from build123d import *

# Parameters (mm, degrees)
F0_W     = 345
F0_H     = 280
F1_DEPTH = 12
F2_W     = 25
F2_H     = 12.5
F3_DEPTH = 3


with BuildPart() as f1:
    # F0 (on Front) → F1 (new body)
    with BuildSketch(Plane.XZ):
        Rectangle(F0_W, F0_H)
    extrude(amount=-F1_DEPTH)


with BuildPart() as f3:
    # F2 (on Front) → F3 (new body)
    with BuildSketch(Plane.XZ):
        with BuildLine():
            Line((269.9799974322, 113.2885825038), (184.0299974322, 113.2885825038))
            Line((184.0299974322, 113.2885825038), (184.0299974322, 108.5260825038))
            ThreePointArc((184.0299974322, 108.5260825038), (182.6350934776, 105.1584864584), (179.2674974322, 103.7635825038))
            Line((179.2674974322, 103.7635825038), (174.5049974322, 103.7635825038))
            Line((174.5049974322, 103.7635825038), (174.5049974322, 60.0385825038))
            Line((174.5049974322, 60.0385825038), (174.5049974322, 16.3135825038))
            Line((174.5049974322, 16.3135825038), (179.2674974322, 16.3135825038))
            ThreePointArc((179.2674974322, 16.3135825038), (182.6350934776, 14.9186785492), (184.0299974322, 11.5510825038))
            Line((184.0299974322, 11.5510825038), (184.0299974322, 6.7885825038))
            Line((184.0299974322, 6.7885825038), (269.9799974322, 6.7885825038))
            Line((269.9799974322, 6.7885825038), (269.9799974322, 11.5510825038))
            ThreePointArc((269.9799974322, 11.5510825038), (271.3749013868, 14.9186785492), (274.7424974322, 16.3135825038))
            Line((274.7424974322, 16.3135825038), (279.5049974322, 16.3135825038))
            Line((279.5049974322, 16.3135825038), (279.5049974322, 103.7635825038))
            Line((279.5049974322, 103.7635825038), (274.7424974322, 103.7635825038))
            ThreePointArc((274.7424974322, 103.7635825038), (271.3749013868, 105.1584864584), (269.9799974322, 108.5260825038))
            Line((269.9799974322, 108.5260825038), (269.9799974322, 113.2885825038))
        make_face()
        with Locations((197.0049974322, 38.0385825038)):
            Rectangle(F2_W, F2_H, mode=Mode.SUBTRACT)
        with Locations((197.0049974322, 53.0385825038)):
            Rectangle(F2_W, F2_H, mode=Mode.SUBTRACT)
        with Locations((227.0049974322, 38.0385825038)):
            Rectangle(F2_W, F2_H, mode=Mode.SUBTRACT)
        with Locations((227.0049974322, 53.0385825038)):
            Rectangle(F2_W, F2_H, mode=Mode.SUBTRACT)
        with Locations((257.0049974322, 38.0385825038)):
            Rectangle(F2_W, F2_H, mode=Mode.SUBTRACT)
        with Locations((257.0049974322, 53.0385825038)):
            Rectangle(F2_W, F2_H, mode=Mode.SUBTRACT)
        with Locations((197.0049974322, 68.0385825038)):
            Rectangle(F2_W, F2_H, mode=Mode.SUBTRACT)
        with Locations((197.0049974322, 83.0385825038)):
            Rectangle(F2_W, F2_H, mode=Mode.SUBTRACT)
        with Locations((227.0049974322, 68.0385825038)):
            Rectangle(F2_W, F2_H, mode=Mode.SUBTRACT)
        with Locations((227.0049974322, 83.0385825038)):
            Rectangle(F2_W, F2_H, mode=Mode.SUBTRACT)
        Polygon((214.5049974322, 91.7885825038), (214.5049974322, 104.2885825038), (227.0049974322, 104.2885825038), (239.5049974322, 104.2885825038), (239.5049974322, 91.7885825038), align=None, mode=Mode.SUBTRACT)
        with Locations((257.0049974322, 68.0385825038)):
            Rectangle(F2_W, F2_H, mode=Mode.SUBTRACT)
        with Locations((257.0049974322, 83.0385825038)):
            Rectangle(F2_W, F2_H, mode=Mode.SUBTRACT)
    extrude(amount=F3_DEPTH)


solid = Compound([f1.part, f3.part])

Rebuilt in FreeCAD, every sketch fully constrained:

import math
import FreeCAD as App
import Part
import Sketcher
from FreeCAD import Vector


def add_polygon(sketch, points):
    """Adds a closed chain of lines whose ends are joined by coincident constraints."""
    first, n = sketch.GeometryCount, len(points)
    for a, b in zip(points, points[1:] + points[:1]):
        sketch.addGeometry(Part.LineSegment(App.Vector(*a, 0), App.Vector(*b, 0)), False)
    for i in range(n):
        sketch.addConstraint(Sketcher.Constraint("Coincident", first + i, 2, first + (i + 1) % n, 1))

doc = App.newDocument("Part")
body = doc.addObject("PartDesign::Body", "Body")

# Sketch on XZ plane
sketch1 = body.newObject("Sketcher::SketchObject", "Sketch")
sketch1.AttachmentSupport = (doc.getObject("XZ_Plane"), [""])
sketch1.MapMode = "FlatFace"
add_polygon(sketch1, [(-172.5, 140), (-172.5, -140), (172.5, -140), (172.5, 140)])  # lines 0-3
sketch1.addConstraint(Sketcher.Constraint("Vertical", 0))
sketch1.addConstraint(Sketcher.Constraint("Horizontal", 1))
sketch1.addConstraint(Sketcher.Constraint("Vertical", 2))
sketch1.addConstraint(Sketcher.Constraint("Horizontal", 3))
sketch1.addConstraint(Sketcher.Constraint("Symmetric", 0, 2, 2, 2, -1, 1))
sketch1.addConstraint(Sketcher.Constraint("DistanceX", 1, 1, 1, 2, 345.0))
sketch1.addConstraint(Sketcher.Constraint("DistanceY", 0, 2, 0, 1, 280.0))
pad1 = body.newObject("PartDesign::Pad", "Pad")
pad1.Profile = sketch1
pad1.Length = 12
pad1.Reversed = True
body2 = doc.addObject("PartDesign::Body", "Body001")

# Sketch on XZ plane
sketch2 = body2.newObject("Sketcher::SketchObject", "Sketch001")
sketch2.AttachmentSupport = (doc.getObject("XZ_Plane001"), [""])
sketch2.MapMode = "FlatFace"
sketch2.addGeometry(Part.LineSegment(Vector(269.979997, 113.288583, 0), Vector(184.029997, 113.288583, 0)), False)  # 0
sketch2.addGeometry(Part.LineSegment(Vector(184.029997, 113.288583, 0), Vector(184.029997, 108.526083, 0)), False)  # 1
sketch2.addGeometry(Part.ArcOfCircle(Part.Circle(Vector(179.267497, 108.526083, 0), Vector(0, 0, 1), 4.7625), math.radians(-90), math.radians(0)), False)  # 2
sketch2.addGeometry(Part.LineSegment(Vector(179.267497, 103.763583, 0), Vector(174.504997, 103.763583, 0)), False)  # 3
sketch2.addGeometry(Part.LineSegment(Vector(174.504997, 103.763583, 0), Vector(174.504997, 16.313583, 0)), False)  # 4
sketch2.addGeometry(Part.LineSegment(Vector(174.504997, 16.313583, 0), Vector(179.267497, 16.313583, 0)), False)  # 5
sketch2.addGeometry(Part.ArcOfCircle(Part.Circle(Vector(179.267497, 11.551083, 0), Vector(0, 0, 1), 4.7625), math.radians(0), math.radians(90)), False)  # 6
sketch2.addGeometry(Part.LineSegment(Vector(184.029997, 11.551083, 0), Vector(184.029997, 6.788583, 0)), False)  # 7
sketch2.addGeometry(Part.LineSegment(Vector(184.029997, 6.788583, 0), Vector(269.979997, 6.788583, 0)), False)  # 8
sketch2.addGeometry(Part.LineSegment(Vector(269.979997, 6.788583, 0), Vector(269.979997, 11.551083, 0)), False)  # 9
sketch2.addGeometry(Part.ArcOfCircle(Part.Circle(Vector(274.742497, 11.551083, 0), Vector(0, 0, 1), 4.7625), math.radians(90), math.radians(180)), False)  # 10
sketch2.addGeometry(Part.LineSegment(Vector(274.742497, 16.313583, 0), Vector(279.504997, 16.313583, 0)), False)  # 11
sketch2.addGeometry(Part.LineSegment(Vector(279.504997, 16.313583, 0), Vector(279.504997, 103.763583, 0)), False)  # 12
sketch2.addGeometry(Part.LineSegment(Vector(279.504997, 103.763583, 0), Vector(274.742497, 103.763583, 0)), False)  # 13
sketch2.addGeometry(Part.ArcOfCircle(Part.Circle(Vector(274.742497, 108.526083, 0), Vector(0, 0, 1), 4.7625), math.radians(180), math.radians(270)), False)  # 14
sketch2.addGeometry(Part.LineSegment(Vector(269.979997, 108.526083, 0), Vector(269.979997, 113.288583, 0)), False)  # 15
add_polygon(sketch2, [(209.504997, 31.788583), (184.504997, 31.788583), (184.504997, 44.288583), (209.504997, 44.288583)])  # lines 16-19
add_polygon(sketch2, [(209.504997, 46.788583), (184.504997, 46.788583), (184.504997, 59.288583), (209.504997, 59.288583)])  # lines 20-23
add_polygon(sketch2, [(239.504997, 31.788583), (214.504997, 31.788583), (214.504997, 44.288583), (239.504997, 44.288583)])  # lines 24-27
add_polygon(sketch2, [(269.504997, 31.788583), (244.504997, 31.788583), (244.504997, 44.288583), (269.504997, 44.288583)])  # lines 28-31
add_polygon(sketch2, [(239.504997, 46.788583), (214.504997, 46.788583), (214.504997, 59.288583), (239.504997, 59.288583)])  # lines 32-35
add_polygon(sketch2, [(269.504997, 46.788583), (244.504997, 46.788583), (244.504997, 59.288583), (269.504997, 59.288583)])  # lines 36-39
add_polygon(sketch2, [(209.504997, 61.788583), (184.504997, 61.788583), (184.504997, 74.288583), (209.504997, 74.288583)])  # lines 40-43
add_polygon(sketch2, [(209.504997, 76.788583), (184.504997, 76.788583), (184.504997, 89.288583), (209.504997, 89.288583)])  # lines 44-47
add_polygon(sketch2, [(239.504997, 61.788583), (214.504997, 61.788583), (214.504997, 74.288583), (239.504997, 74.288583)])  # lines 48-51
add_polygon(sketch2, [(239.504997, 76.788583), (214.504997, 76.788583), (214.504997, 89.288583), (239.504997, 89.288583)])  # lines 52-55
add_polygon(sketch2, [(269.504997, 61.788583), (244.504997, 61.788583), (244.504997, 74.288583), (269.504997, 74.288583)])  # lines 56-59
add_polygon(sketch2, [(269.504997, 76.788583), (244.504997, 76.788583), (244.504997, 89.288583), (269.504997, 89.288583)])  # lines 60-63
add_polygon(sketch2, [(239.504997, 91.788583), (214.504997, 91.788583), (214.504997, 104.288583), (239.504997, 104.288583)])  # lines 64-67
sketch2.addConstraint(Sketcher.Constraint("Coincident", 0, 2, 1, 1))
sketch2.addConstraint(Sketcher.Constraint("Tangent", 1, 2, 2, 2))
sketch2.addConstraint(Sketcher.Constraint("Tangent", 2, 1, 3, 1))
sketch2.addConstraint(Sketcher.Constraint("Coincident", 3, 2, 4, 1))
sketch2.addConstraint(Sketcher.Constraint("Coincident", 4, 2, 5, 1))
sketch2.addConstraint(Sketcher.Constraint("Tangent", 5, 2, 6, 2))
sketch2.addConstraint(Sketcher.Constraint("Tangent", 6, 1, 7, 1))
sketch2.addConstraint(Sketcher.Constraint("Coincident", 7, 2, 8, 1))
sketch2.addConstraint(Sketcher.Constraint("Coincident", 8, 2, 9, 1))
sketch2.addConstraint(Sketcher.Constraint("Tangent", 9, 2, 10, 2))
sketch2.addConstraint(Sketcher.Constraint("Tangent", 10, 1, 11, 1))
sketch2.addConstraint(Sketcher.Constraint("Coincident", 11, 2, 12, 1))
sketch2.addConstraint(Sketcher.Constraint("Coincident", 12, 2, 13, 1))
sketch2.addConstraint(Sketcher.Constraint("Tangent", 13, 2, 14, 2))
sketch2.addConstraint(Sketcher.Constraint("Tangent", 14, 1, 15, 1))
sketch2.addConstraint(Sketcher.Constraint("Coincident", 15, 2, 0, 1))
sketch2.addConstraint(Sketcher.Constraint("Horizontal", 0))
sketch2.addConstraint(Sketcher.Constraint("Vertical", 1))
sketch2.addConstraint(Sketcher.Constraint("Horizontal", 3))
sketch2.addConstraint(Sketcher.Constraint("Vertical", 4))
sketch2.addConstraint(Sketcher.Constraint("Horizontal", 5))
sketch2.addConstraint(Sketcher.Constraint("Vertical", 7))
sketch2.addConstraint(Sketcher.Constraint("Horizontal", 8))
sketch2.addConstraint(Sketcher.Constraint("Vertical", 9))
sketch2.addConstraint(Sketcher.Constraint("Horizontal", 11))
sketch2.addConstraint(Sketcher.Constraint("Vertical", 12))
sketch2.addConstraint(Sketcher.Constraint("Horizontal", 13))
sketch2.addConstraint(Sketcher.Constraint("Vertical", 15))
sketch2.addConstraint(Sketcher.Constraint("Horizontal", 16))
sketch2.addConstraint(Sketcher.Constraint("Vertical", 17))
sketch2.addConstraint(Sketcher.Constraint("Horizontal", 18))
sketch2.addConstraint(Sketcher.Constraint("Vertical", 19))
sketch2.addConstraint(Sketcher.Constraint("Horizontal", 20))
sketch2.addConstraint(Sketcher.Constraint("Vertical", 21))
sketch2.addConstraint(Sketcher.Constraint("Horizontal", 22))
sketch2.addConstraint(Sketcher.Constraint("Vertical", 23))
sketch2.addConstraint(Sketcher.Constraint("Horizontal", 24))
sketch2.addConstraint(Sketcher.Constraint("Vertical", 25))
sketch2.addConstraint(Sketcher.Constraint("Horizontal", 26))
sketch2.addConstraint(Sketcher.Constraint("Vertical", 27))
sketch2.addConstraint(Sketcher.Constraint("Horizontal", 28))
sketch2.addConstraint(Sketcher.Constraint("Vertical", 29))
sketch2.addConstraint(Sketcher.Constraint("Horizontal", 30))
sketch2.addConstraint(Sketcher.Constraint("Vertical", 31))
sketch2.addConstraint(Sketcher.Constraint("Horizontal", 32))
sketch2.addConstraint(Sketcher.Constraint("Vertical", 33))
sketch2.addConstraint(Sketcher.Constraint("Horizontal", 34))
sketch2.addConstraint(Sketcher.Constraint("Vertical", 35))
sketch2.addConstraint(Sketcher.Constraint("Horizontal", 36))
sketch2.addConstraint(Sketcher.Constraint("Vertical", 37))
sketch2.addConstraint(Sketcher.Constraint("Horizontal", 38))
sketch2.addConstraint(Sketcher.Constraint("Vertical", 39))
sketch2.addConstraint(Sketcher.Constraint("Horizontal", 40))
sketch2.addConstraint(Sketcher.Constraint("Vertical", 41))
sketch2.addConstraint(Sketcher.Constraint("Horizontal", 42))
sketch2.addConstraint(Sketcher.Constraint("Vertical", 43))
sketch2.addConstraint(Sketcher.Constraint("Horizontal", 44))
sketch2.addConstraint(Sketcher.Constraint("Vertical", 45))
sketch2.addConstraint(Sketcher.Constraint("Horizontal", 46))
sketch2.addConstraint(Sketcher.Constraint("Vertical", 47))
sketch2.addConstraint(Sketcher.Constraint("Horizontal", 48))
sketch2.addConstraint(Sketcher.Constraint("Vertical", 49))
sketch2.addConstraint(Sketcher.Constraint("Horizontal", 50))
sketch2.addConstraint(Sketcher.Constraint("Vertical", 51))
sketch2.addConstraint(Sketcher.Constraint("Horizontal", 52))
sketch2.addConstraint(Sketcher.Constraint("Vertical", 53))
sketch2.addConstraint(Sketcher.Constraint("Horizontal", 54))
sketch2.addConstraint(Sketcher.Constraint("Vertical", 55))
sketch2.addConstraint(Sketcher.Constraint("Horizontal", 56))
sketch2.addConstraint(Sketcher.Constraint("Vertical", 57))
sketch2.addConstraint(Sketcher.Constraint("Horizontal", 58))
sketch2.addConstraint(Sketcher.Constraint("Vertical", 59))
sketch2.addConstraint(Sketcher.Constraint("Horizontal", 60))
sketch2.addConstraint(Sketcher.Constraint("Vertical", 61))
sketch2.addConstraint(Sketcher.Constraint("Horizontal", 62))
sketch2.addConstraint(Sketcher.Constraint("Vertical", 63))
sketch2.addConstraint(Sketcher.Constraint("Horizontal", 64))
sketch2.addConstraint(Sketcher.Constraint("Vertical", 65))
sketch2.addConstraint(Sketcher.Constraint("Horizontal", 66))
sketch2.addConstraint(Sketcher.Constraint("Vertical", 67))
sketch2.addConstraint(Sketcher.Constraint("Equal", 2, 6))
sketch2.addConstraint(Sketcher.Constraint("Equal", 6, 10))
sketch2.addConstraint(Sketcher.Constraint("Equal", 10, 14))
sketch2.addConstraint(Sketcher.Constraint("Horizontal", 6, 3, 10, 3))
sketch2.addConstraint(Sketcher.Constraint("Horizontal", 2, 3, 14, 3))
sketch2.addConstraint(Sketcher.Constraint("Horizontal", 19, 2, 24, 2))
sketch2.addConstraint(Sketcher.Constraint("Horizontal", 18, 2, 25, 2))
sketch2.addConstraint(Sketcher.Constraint("Horizontal", 27, 2, 28, 2))
sketch2.addConstraint(Sketcher.Constraint("Horizontal", 26, 2, 29, 2))
sketch2.addConstraint(Sketcher.Constraint("Horizontal", 23, 2, 32, 2))
sketch2.addConstraint(Sketcher.Constraint("Horizontal", 22, 2, 33, 2))
sketch2.addConstraint(Sketcher.Constraint("Horizontal", 35, 2, 36, 2))
sketch2.addConstraint(Sketcher.Constraint("Horizontal", 34, 2, 37, 2))
sketch2.addConstraint(Sketcher.Constraint("Horizontal", 43, 2, 48, 2))
sketch2.addConstraint(Sketcher.Constraint("Horizontal", 42, 2, 49, 2))
sketch2.addConstraint(Sketcher.Constraint("Horizontal", 47, 2, 52, 2))
sketch2.addConstraint(Sketcher.Constraint("Horizontal", 46, 2, 53, 2))
sketch2.addConstraint(Sketcher.Constraint("Horizontal", 51, 2, 56, 2))
sketch2.addConstraint(Sketcher.Constraint("Horizontal", 50, 2, 57, 2))
sketch2.addConstraint(Sketcher.Constraint("Horizontal", 55, 2, 60, 2))
sketch2.addConstraint(Sketcher.Constraint("Horizontal", 54, 2, 61, 2))
sketch2.addConstraint(Sketcher.Constraint("Vertical", 2, 3, 6, 3))
sketch2.addConstraint(Sketcher.Constraint("Vertical", 10, 3, 14, 3))
sketch2.addConstraint(Sketcher.Constraint("Vertical", 17, 2, 20, 2))
sketch2.addConstraint(Sketcher.Constraint("Vertical", 19, 2, 22, 2))
sketch2.addConstraint(Sketcher.Constraint("Vertical", 25, 2, 32, 2))
sketch2.addConstraint(Sketcher.Constraint("Vertical", 27, 2, 34, 2))
sketch2.addConstraint(Sketcher.Constraint("Vertical", 29, 2, 36, 2))
sketch2.addConstraint(Sketcher.Constraint("Vertical", 31, 2, 38, 2))
sketch2.addConstraint(Sketcher.Constraint("Vertical", 21, 2, 40, 2))
sketch2.addConstraint(Sketcher.Constraint("Vertical", 23, 2, 42, 2))
sketch2.addConstraint(Sketcher.Constraint("Vertical", 41, 2, 44, 2))
sketch2.addConstraint(Sketcher.Constraint("Vertical", 43, 2, 46, 2))
sketch2.addConstraint(Sketcher.Constraint("Vertical", 33, 2, 48, 2))
sketch2.addConstraint(Sketcher.Constraint("Vertical", 35, 2, 50, 2))
sketch2.addConstraint(Sketcher.Constraint("Vertical", 49, 2, 52, 2))
sketch2.addConstraint(Sketcher.Constraint("Vertical", 51, 2, 54, 2))
sketch2.addConstraint(Sketcher.Constraint("Vertical", 37, 2, 56, 2))
sketch2.addConstraint(Sketcher.Constraint("Vertical", 39, 2, 58, 2))
sketch2.addConstraint(Sketcher.Constraint("Vertical", 57, 2, 60, 2))
sketch2.addConstraint(Sketcher.Constraint("Vertical", 59, 2, 62, 2))
sketch2.addConstraint(Sketcher.Constraint("Vertical", 53, 2, 64, 2))
sketch2.addConstraint(Sketcher.Constraint("Vertical", 55, 2, 66, 2))
sketch2.addConstraint(Sketcher.Constraint("Equal", 5, 11))
sketch2.addConstraint(Sketcher.Constraint("Equal", 22, 24))
sketch2.addConstraint(Sketcher.Constraint("Equal", 26, 28))
sketch2.addConstraint(Sketcher.Constraint("Equal", 13, 1))
sketch2.addConstraint(Sketcher.Constraint("Equal", 1, 7))
sketch2.addConstraint(Sketcher.Constraint("Equal", 19, 21))
sketch2.addConstraint(Sketcher.Constraint("Equal", 39, 41))
sketch2.addConstraint(Sketcher.Constraint("Equal", 43, 45))
sketch2.addConstraint(Sketcher.Constraint("Equal", 63, 65))
sketch2.addConstraint(Sketcher.Constraint("DistanceX", 16, 2, 16, 1, 25.0))
sketch2.addConstraint(Sketcher.Constraint("DistanceY", 17, 1, 17, 2, 12.5))
sketch2.addConstraint(Sketcher.Constraint("DistanceX", 0, 2, 0, 1, 85.95))
sketch2.addConstraint(Sketcher.Constraint("DistanceY", 4, 2, 4, 1, 87.45))
sketch2.addConstraint(Sketcher.Constraint("Radius", 2, 4.7625))
sketch2.addConstraint(Sketcher.Constraint("DistanceX", 3, 2, 3, 1, 4.7625))
sketch2.addConstraint(Sketcher.Constraint("DistanceX", -1, 1, 2, 3, 179.267497))
sketch2.addConstraint(Sketcher.Constraint("DistanceY", -1, 1, 2, 3, 108.526083))
sketch2.addConstraint(Sketcher.Constraint("DistanceX", -1, 1, 16, 2, 184.504997))
sketch2.addConstraint(Sketcher.Constraint("DistanceY", -1, 1, 16, 2, 31.788583))
sketch2.addConstraint(Sketcher.Constraint("DistanceY", -1, 1, 20, 2, 46.788583))
sketch2.addConstraint(Sketcher.Constraint("DistanceX", -1, 1, 24, 2, 214.504997))
sketch2.addConstraint(Sketcher.Constraint("DistanceX", -1, 1, 28, 2, 244.504997))
sketch2.addConstraint(Sketcher.Constraint("DistanceY", -1, 1, 40, 2, 61.788583))
sketch2.addConstraint(Sketcher.Constraint("DistanceY", -1, 1, 44, 2, 76.788583))
sketch2.addConstraint(Sketcher.Constraint("DistanceY", -1, 1, 64, 2, 91.788583))
pad2 = body2.newObject("PartDesign::Pad", "Pad001")
pad2.Profile = sketch2
pad2.Length = 3

doc.recompute()
